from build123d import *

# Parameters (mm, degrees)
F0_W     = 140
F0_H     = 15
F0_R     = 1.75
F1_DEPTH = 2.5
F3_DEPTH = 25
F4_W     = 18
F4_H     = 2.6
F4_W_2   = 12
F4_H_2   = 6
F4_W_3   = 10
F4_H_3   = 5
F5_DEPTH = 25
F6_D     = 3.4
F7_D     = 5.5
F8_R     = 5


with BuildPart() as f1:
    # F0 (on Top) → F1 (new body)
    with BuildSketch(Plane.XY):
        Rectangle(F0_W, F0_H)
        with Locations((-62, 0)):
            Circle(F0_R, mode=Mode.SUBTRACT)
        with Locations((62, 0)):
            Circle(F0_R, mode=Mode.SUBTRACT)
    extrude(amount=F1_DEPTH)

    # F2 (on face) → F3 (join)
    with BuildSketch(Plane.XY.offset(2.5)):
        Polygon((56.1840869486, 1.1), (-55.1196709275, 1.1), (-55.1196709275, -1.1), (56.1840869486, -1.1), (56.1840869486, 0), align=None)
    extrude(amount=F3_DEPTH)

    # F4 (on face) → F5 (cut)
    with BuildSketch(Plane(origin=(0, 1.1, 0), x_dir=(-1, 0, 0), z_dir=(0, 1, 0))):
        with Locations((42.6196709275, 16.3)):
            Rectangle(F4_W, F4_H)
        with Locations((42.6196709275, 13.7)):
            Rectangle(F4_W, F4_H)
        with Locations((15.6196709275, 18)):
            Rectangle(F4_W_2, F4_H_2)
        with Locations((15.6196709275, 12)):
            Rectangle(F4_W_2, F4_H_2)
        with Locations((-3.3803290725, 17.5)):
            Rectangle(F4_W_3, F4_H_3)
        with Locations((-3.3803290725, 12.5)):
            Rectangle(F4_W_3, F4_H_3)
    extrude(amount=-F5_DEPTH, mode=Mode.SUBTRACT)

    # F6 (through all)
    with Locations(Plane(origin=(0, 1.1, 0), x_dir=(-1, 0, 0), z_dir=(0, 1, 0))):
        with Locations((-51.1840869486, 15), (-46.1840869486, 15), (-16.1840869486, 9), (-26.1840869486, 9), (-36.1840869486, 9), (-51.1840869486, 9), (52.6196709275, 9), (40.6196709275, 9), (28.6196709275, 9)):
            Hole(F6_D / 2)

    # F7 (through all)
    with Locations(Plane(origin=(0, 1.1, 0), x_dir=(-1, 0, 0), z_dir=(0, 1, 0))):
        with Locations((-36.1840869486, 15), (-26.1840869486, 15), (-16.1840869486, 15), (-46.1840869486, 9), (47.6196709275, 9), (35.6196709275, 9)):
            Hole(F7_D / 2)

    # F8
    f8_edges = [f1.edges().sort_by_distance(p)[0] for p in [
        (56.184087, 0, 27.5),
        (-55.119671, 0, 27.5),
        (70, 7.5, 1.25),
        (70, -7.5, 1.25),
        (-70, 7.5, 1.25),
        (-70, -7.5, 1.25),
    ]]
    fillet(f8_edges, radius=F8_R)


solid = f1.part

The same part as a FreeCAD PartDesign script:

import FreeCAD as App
import Part
import Sketcher
Q = App.Units.Quantity


def edges_at(feature, points):
    """Names of the edges that pass closest to the given points."""
    edges = feature.Shape.Edges
    near = lambda p: min(range(len(edges)), key=lambda i: edges[i].distToShape(Part.Vertex(*p))[0])
    return sorted({f"Edge{near(p) + 1}" for p in points})

doc = App.newDocument("Part")
body = doc.addObject("PartDesign::Body", "Body")

# Sketch on XY plane
sketch1 = body.newObject("Sketcher::SketchObject", "Sketch")
sketch1.AttachmentSupport = (doc.getObject("XY_Plane"), [""])
sketch1.MapMode = "FlatFace"
sketch1.addGeometry(Part.LineSegment(App.Vector(-70, 7.5, 0), App.Vector(-70, -7.5, 0)), False)
sketch1.addGeometry(Part.LineSegment(App.Vector(-70, -7.5, 0), App.Vector(70, -7.5, 0)), False)
sketch1.addGeometry(Part.LineSegment(App.Vector(70, -7.5, 0), App.Vector(70, 7.5, 0)), False)
sketch1.addGeometry(Part.LineSegment(App.Vector(70, 7.5, 0), App.Vector(-70, 7.5, 0)), False)
sketch1.addGeometry(Part.Circle(App.Vector(-62, 0, 0), App.Vector(0, 0, 1), 1.8), False)
sketch1.addGeometry(Part.Circle(App.Vector(62, 0, 0), App.Vector(0, 0, 1), 1.8), False)
sketch1.addConstraint(Sketcher.Constraint("Coincident", 0, 2, 1, 1))
sketch1.addConstraint(Sketcher.Constraint("Coincident", 1, 2, 2, 1))
sketch1.addConstraint(Sketcher.Constraint("Coincident", 2, 2, 3, 1))
sketch1.addConstraint(Sketcher.Constraint("Coincident", 3, 2, 0, 1))
sketch1.addConstraint(Sketcher.Constraint("Vertical", 0))
sketch1.addConstraint(Sketcher.Constraint("Horizontal", 1))
sketch1.addConstraint(Sketcher.Constraint("Vertical", 2))
sketch1.addConstraint(Sketcher.Constraint("Horizontal", 3))
sketch1.addConstraint(Sketcher.Constraint("Equal", 4, 5))
sketch1.addConstraint(Sketcher.Constraint("Symmetric", 4, 3, 5, 3, -1, 1))
sketch1.addConstraint(Sketcher.Constraint("Symmetric", 0, 2, 2, 2, -1, 1))
sketch1.addConstraint(Sketcher.Constraint("PointOnObject", 4, 3, -1))
sketch1.addConstraint(Sketcher.Constraint("Diameter", 4, Q("3.5 mm")))
sketch1.addConstraint(Sketcher.Constraint("DistanceX", 1, 1, 1, 2, Q("140 mm")))
sketch1.addConstraint(Sketcher.Constraint("DistanceY", 0, 2, 0, 1, Q("15 mm")))
sketch1.addConstraint(Sketcher.Constraint("DistanceX", 4, 3, -1, 1, Q("62 mm")))
pad1 = body.newObject("PartDesign::Pad", "Pad")
pad1.Profile = sketch1
pad1.Length = 2.5

# Sketch on XY plane
sketch2 = body.newObject("Sketcher::SketchObject", "Sketch001")
sketch2.AttachmentSupport = (doc.getObject("XY_Plane"), [""])
sketch2.MapMode = "FlatFace"
sketch2.AttachmentOffset = App.Placement(App.Vector(0, 0, 2.5), App.Rotation())
sketch2.addGeometry(Part.LineSegment(App.Vector(56.2, 1.1, 0), App.Vector(-55.1, 1.1, 0)), False)
sketch2.addGeometry(Part.LineSegment(App.Vector(-55.1, 1.1, 0), App.Vector(-55.1, -1.1, 0)), False)
sketch2.addGeometry(Part.LineSegment(App.Vector(-55.1, -1.1, 0), App.Vector(56.2, -1.1, 0)), False)
sketch2.addGeometry(Part.LineSegment(App.Vector(56.2, -1.1, 0), App.Vector(56.2, 1.1, 0)), False)
sketch2.addConstraint(Sketcher.Constraint("Coincident", 0, 2, 1, 1))
sketch2.addConstraint(Sketcher.Constraint("Coincident", 1, 2, 2, 1))
sketch2.addConstraint(Sketcher.Constraint("Coincident", 2, 2, 3, 1))
sketch2.addConstraint(Sketcher.Constraint("Coincident", 3, 2, 0, 1))
sketch2.addConstraint(Sketcher.Constraint("Horizontal", 0))
sketch2.addConstraint(Sketcher.Constraint("Vertical", 1))
sketch2.addConstraint(Sketcher.Constraint("Horizontal", 2))
sketch2.addConstraint(Sketcher.Constraint("Vertical", 3))
sketch2.addConstraint(Sketcher.Constraint("DistanceY", 1, 2, 1, 1, Q("2.2 mm")))
sketch2.addConstraint(Sketcher.Constraint("DistanceY", -1, 1, 0, 2, Q("1.1 mm")))
sketch2.addConstraint(Sketcher.Constraint("DistanceX", 0, 2, 0, 1, Q("111.303758 mm")))
sketch2.addConstraint(Sketcher.Constraint("DistanceX", 0, 2, -1, 1, Q("55.119671 mm")))
pad2 = body.newObject("PartDesign::Pad", "Pad001")
pad2.Profile = sketch2
pad2.Length = 25

# Sketch on XZ plane
sketch3 = body.newObject("Sketcher::SketchObject", "Sketch002")
sketch3.AttachmentSupport = (doc.getObject("XZ_Plane"), [""])
sketch3.MapMode = "FlatFace"
sketch3.AttachmentOffset = App.Placement(App.Vector(0, 0, -1.1), App.Rotation())
sketch3.addGeometry(Part.LineSegment(App.Vector(-34, 18, 0), App.Vector(-34, 12, 0)), False)
sketch3.addGeometry(Part.LineSegment(App.Vector(-34, 12, 0), App.Vector(-52, 12, 0)), False)
sketch3.addGeometry(Part.LineSegment(App.Vector(-52, 12, 0), App.Vector(-52, 18, 0)), False)
sketch3.addGeometry(Part.LineSegment(App.Vector(-52, 18, 0), App.Vector(-34, 18, 0)), False)
sketch3.addGeometry(Part.LineSegment(App.Vector(-10, 21, 0), App.Vector(-10, 9, 0)), False)
sketch3.addGeometry(Part.LineSegment(App.Vector(-10, 9, 0), App.Vector(-22, 9, 0)), False)
sketch3.addGeometry(Part.LineSegment(App.Vector(-22, 9, 0), App.Vector(-22, 21, 0)), False)
sketch3.addGeometry(Part.LineSegment(App.Vector(-22, 21, 0), App.Vector(-10, 21, 0)), False)
sketch3.addGeometry(Part.LineSegment(App.Vector(8, 20, 0), App.Vector(8, 10, 0)), False)
sketch3.addGeometry(Part.LineSegment(App.Vector(8, 10, 0), App.Vector(-2, 10, 0)), False)
sketch3.addGeometry(Part.LineSegment(App.Vector(-2, 10, 0), App.Vector(-2, 20, 0)), False)
sketch3.addGeometry(Part.LineSegment(App.Vector(-2, 20, 0), App.Vector(8, 20, 0)), False)
sketch3.addConstraint(Sketcher.Constraint("Coincident", 0, 2, 1, 1))
sketch3.addConstraint(Sketcher.Constraint("Coincident", 1, 2, 2, 1))
sketch3.addConstraint(Sketcher.Constraint("Coincident", 2, 2, 3, 1))
sketch3.addConstraint(Sketcher.Constraint("Coincident", 3, 2, 0, 1))
sketch3.addConstraint(Sketcher.Constraint("Coincident", 4, 2, 5, 1))
sketch3.addConstraint(Sketcher.Constraint("Coincident", 5, 2, 6, 1))
sketch3.addConstraint(Sketcher.Constraint("Coincident", 6, 2, 7, 1))
sketch3.addConstraint(Sketcher.Constraint("Coincident", 7, 2, 4, 1))
sketch3.addConstraint(Sketcher.Constraint("Coincident", 8, 2, 9, 1))
sketch3.addConstraint(Sketcher.Constraint("Coincident", 9, 2, 10, 1))
sketch3.addConstraint(Sketcher.Constraint("Coincident", 10, 2, 11, 1))
sketch3.addConstraint(Sketcher.Constraint("Coincident", 11, 2, 8, 1))
sketch3.addConstraint(Sketcher.Constraint("Vertical", 0))
sketch3.addConstraint(Sketcher.Constraint("Horizontal", 1))
sketch3.addConstraint(Sketcher.Constraint("Vertical", 2))
sketch3.addConstraint(Sketcher.Constraint("Horizontal", 3))
sketch3.addConstraint(Sketcher.Constraint("Vertical", 4))
sketch3.addConstraint(Sketcher.Constraint("Horizontal", 5))
sketch3.addConstraint(Sketcher.Constraint("Vertical", 6))
sketch3.addConstraint(Sketcher.Constraint("Horizontal", 7))
sketch3.addConstraint(Sketcher.Constraint("Vertical", 8))
sketch3.addConstraint(Sketcher.Constraint("Horizontal", 9))
sketch3.addConstraint(Sketcher.Constraint("Vertical", 10))
sketch3.addConstraint(Sketcher.Constraint("Horizontal", 11))
sketch3.addConstraint(Sketcher.Constraint("Equal", 7, 4))
sketch3.addConstraint(Sketcher.Constraint("Equal", 11, 8))
sketch3.addConstraint(Sketcher.Constraint("DistanceX", 1, 2, 1, 1, Q("18 mm")))
sketch3.addConstraint(Sketcher.Constraint("DistanceX", 5, 2, 5, 1, Q("12 mm")))
sketch3.addConstraint(Sketcher.Constraint("DistanceX", 9, 2, 9, 1, Q("10 mm")))
sketch3.addConstraint(Sketcher.Constraint("DistanceY", 0, 2, 0, 1, Q("5.2 mm")))
sketch3.addConstraint(Sketcher.Constraint("DistanceY", -1, 1, 4, 2, Q("9 mm")))
sketch3.addConstraint(Sketcher.Constraint("DistanceY", -1, 1, 8, 2, Q("10 mm")))
sketch3.addConstraint(Sketcher.Constraint("DistanceX", 0, 2, 4, 2, Q("24 mm")))
sketch3.addConstraint(Sketcher.Constraint("DistanceX", 4, 2, 8, 2, Q("18 mm")))
sketch3.addConstraint(Sketcher.Constraint("DistanceY", -1, 1, 0, 2, Q("12.4 mm")))
sketch3.addConstraint(Sketcher.Constraint("DistanceX", 0, 2, -1, 1, Q("33.619671 mm")))
pocket1 = body.newObject("PartDesign::Pocket", "Pocket")
pocket1.Profile = sketch3
pocket1.Length = 25
pocket1.Reversed = True

# Sketch on XZ plane
sketch4 = body.newObject("Sketcher::SketchObject", "Sketch003")
sketch4.AttachmentSupport = (doc.getObject("XZ_Plane"), [""])
sketch4.MapMode = "FlatFace"
sketch4.AttachmentOffset = App.Placement(App.Vector(0, 0, -1.1), App.Rotation())
sketch4.addGeometry(Part.Circle(App.Vector(51.2, 15, 0), App.Vector(0, 0, 1), 1.7), False)
sketch4.addGeometry(Part.Circle(App.Vector(46.2, 15, 0), App.Vector(0, 0, 1), 1.7), False)
sketch4.addGeometry(Part.Circle(App.Vector(16.2, 9, 0), App.Vector(0, 0, 1), 1.7), False)
sketch4.addGeometry(Part.Circle(App.Vector(26.2, 9, 0), App.Vector(0, 0, 1), 1.7), False)
sketch4.addGeometry(Part.Circle(App.Vector(36.2, 9, 0), App.Vector(0, 0, 1), 1.7), False)
sketch4.addGeometry(Part.Circle(App.Vector(51.2, 9, 0), App.Vector(0, 0, 1), 1.7), False)
sketch4.addGeometry(Part.Circle(App.Vector(-52.6, 9, 0), App.Vector(0, 0, 1), 1.7), False)
sketch4.addGeometry(Part.Circle(App.Vector(-40.6, 9, 0), App.Vector(0, 0, 1), 1.7), False)
sketch4.addGeometry(Part.Circle(App.Vector(-28.6, 9, 0), App.Vector(0, 0, 1), 1.7), False)
sketch4.addConstraint(Sketcher.Constraint("Equal", 0, 1))
sketch4.addConstraint(Sketcher.Constraint("Equal", 1, 2))
sketch4.addConstraint(Sketcher.Constraint("Equal", 2, 3))
sketch4.addConstraint(Sketcher.Constraint("Equal", 3, 4))
sketch4.addConstraint(Sketcher.Constraint("Equal", 4, 5))
sketch4.addConstraint(Sketcher.Constraint("Equal", 5, 6))
sketch4.addConstraint(Sketcher.Constraint("Equal", 6, 7))
sketch4.addConstraint(Sketcher.Constraint("Equal", 7, 8))
sketch4.addConstraint(Sketcher.Constraint("Horizontal", 0, 3, 1, 3))
sketch4.addConstraint(Sketcher.Constraint("Horizontal", 2, 3, 3, 3))
sketch4.addConstraint(Sketcher.Constraint("Horizontal", 3, 3, 4, 3))
sketch4.addConstraint(Sketcher.Constraint("Horizontal", 4, 3, 5, 3))
sketch4.addConstraint(Sketcher.Constraint("Horizontal", 5, 3, 6, 3))
sketch4.addConstraint(Sketcher.Constraint("Horizontal", 6, 3, 7, 3))
sketch4.addConstraint(Sketcher.Constraint("Horizontal", 7, 3, 8, 3))
sketch4.addConstraint(Sketcher.Constraint("Vertical", 0, 3, 5, 3))
sketch4.addConstraint(Sketcher.Constraint("Diameter", 0, Q("3.4 mm")))
sketch4.addConstraint(Sketcher.Constraint("DistanceY", -1, 1, 0, 3, Q("15 mm")))
sketch4.addConstraint(Sketcher.Constraint("DistanceY", -1, 1, 2, 3, Q("9 mm")))
sketch4.addConstraint(Sketcher.Constraint("DistanceX", 1, 3, 0, 3, Q("5 mm")))
sketch4.addConstraint(Sketcher.Constraint("DistanceX", 2, 3, 1, 3, Q("30 mm")))
sketch4.addConstraint(Sketcher.Constraint("DistanceX", 2, 3, 3, 3, Q("10 mm")))
sketch4.addConstraint(Sketcher.Constraint("DistanceX", 3, 3, 4, 3, Q("10 mm")))
sketch4.addConstraint(Sketcher.Constraint("DistanceX", 6, 3, 7, 3, Q("12 mm")))
sketch4.addConstraint(Sketcher.Constraint("DistanceX", 7, 3, 8, 3, Q("12 mm")))
sketch4.addConstraint(Sketcher.Constraint("DistanceX", 6, 3, -1, 1, Q("52.619671 mm")))
sketch4.addConstraint(Sketcher.Constraint("DistanceX", -1, 1, 0, 3, Q("51.184087 mm")))
doc.recompute()
hole = body.newObject("PartDesign::Hole", "Hole")
hole.Profile = sketch4
hole.ThreadType = "None"
hole.Diameter = 3.4
hole.DepthType = "ThroughAll"
hole.Reversed = True

# Sketch on XZ plane
sketch5 = body.newObject("Sketcher::SketchObject", "Sketch004")
sketch5.AttachmentSupport = (doc.getObject("XZ_Plane"), [""])
sketch5.MapMode = "FlatFace"
sketch5.AttachmentOffset = App.Placement(App.Vector(0, 0, -1.1), App.Rotation())
sketch5.addGeometry(Part.Circle(App.Vector(36.2, 15, 0), App.Vector(0, 0, 1), 2.8), False)
sketch5.addGeometry(Part.Circle(App.Vector(26.2, 15, 0), App.Vector(0, 0, 1), 2.8), False)
sketch5.addGeometry(Part.Circle(App.Vector(16.2, 15, 0), App.Vector(0, 0, 1), 2.8), False)
sketch5.addGeometry(Part.Circle(App.Vector(46.2, 9, 0), App.Vector(0, 0, 1), 2.8), False)
sketch5.addGeometry(Part.Circle(App.Vector(-47.6, 9, 0), App.Vector(0, 0, 1), 2.8), False)
sketch5.addGeometry(Part.Circle(App.Vector(-35.6, 9, 0), App.Vector(0, 0, 1), 2.8), False)
sketch5.addConstraint(Sketcher.Constraint("Equal", 0, 1))
sketch5.addConstraint(Sketcher.Constraint("Equal", 1, 2))
sketch5.addConstraint(Sketcher.Constraint("Equal", 2, 3))
sketch5.addConstraint(Sketcher.Constraint("Equal", 3, 4))
sketch5.addConstraint(Sketcher.Constraint("Equal", 4, 5))
sketch5.addConstraint(Sketcher.Constraint("Horizontal", 0, 3, 1, 3))
sketch5.addConstraint(Sketcher.Constraint("Horizontal", 1, 3, 2, 3))
sketch5.addConstraint(Sketcher.Constraint("Horizontal", 3, 3, 4, 3))
sketch5.addConstraint(Sketcher.Constraint("Horizontal", 4, 3, 5, 3))
sketch5.addConstraint(Sketcher.Constraint("Diameter", 0, Q("5.5 mm")))
sketch5.addConstraint(Sketcher.Constraint("DistanceY", -1, 1, 0, 3, Q("15 mm")))
sketch5.addConstraint(Sketcher.Constraint("DistanceY", -1, 1, 3, 3, Q("9 mm")))
sketch5.addConstraint(Sketcher.Constraint("DistanceX", 1, 3, 0, 3, Q("10 mm")))
sketch5.addConstraint(Sketcher.Constraint("DistanceX", 2, 3, 1, 3, Q("10 mm")))
sketch5.addConstraint(Sketcher.Constraint("DistanceX", 0, 3, 3, 3, Q("10 mm")))
sketch5.addConstraint(Sketcher.Constraint("DistanceX", 4, 3, 5, 3, Q("12 mm")))
sketch5.addConstraint(Sketcher.Constraint("DistanceX", 4, 3, -1, 1, Q("47.619671 mm")))
sketch5.addConstraint(Sketcher.Constraint("DistanceX", -1, 1, 0, 3, Q("36.184087 mm")))
doc.recompute()
hole2 = body.newObject("PartDesign::Hole", "Hole001")
hole2.Profile = sketch5
hole2.ThreadType = "None"
hole2.Diameter = 5.5
hole2.DepthType = "ThroughAll"
hole2.Reversed = True
doc.recompute()

fillet = body.newObject("PartDesign::Fillet", "Fillet")
fillet.Base = (hole2, edges_at(hole2, [
    (56.184, 0, 27.5),
    (-55.12, 0, 27.5),
    (70, 7.5, 1.25),
    (70, -7.5, 1.25),
    (-70, 7.5, 1.25),
    (-70, -7.5, 1.25),
]))
fillet.Radius = 5

doc.recompute()
